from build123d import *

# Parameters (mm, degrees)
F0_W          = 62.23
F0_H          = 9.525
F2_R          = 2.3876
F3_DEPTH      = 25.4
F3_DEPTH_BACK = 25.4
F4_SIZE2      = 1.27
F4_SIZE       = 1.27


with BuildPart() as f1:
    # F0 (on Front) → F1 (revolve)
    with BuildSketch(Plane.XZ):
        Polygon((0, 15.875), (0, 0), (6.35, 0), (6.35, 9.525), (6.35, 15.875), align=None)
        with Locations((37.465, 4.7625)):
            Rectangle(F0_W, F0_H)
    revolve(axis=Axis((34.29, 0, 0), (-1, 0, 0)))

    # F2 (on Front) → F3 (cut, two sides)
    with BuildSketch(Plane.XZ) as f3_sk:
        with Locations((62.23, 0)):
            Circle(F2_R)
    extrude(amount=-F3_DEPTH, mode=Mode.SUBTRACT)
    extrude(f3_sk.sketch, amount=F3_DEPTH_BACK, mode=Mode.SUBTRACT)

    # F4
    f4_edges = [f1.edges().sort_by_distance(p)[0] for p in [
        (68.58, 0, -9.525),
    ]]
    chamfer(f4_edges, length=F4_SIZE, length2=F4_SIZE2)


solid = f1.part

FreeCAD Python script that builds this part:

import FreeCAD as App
import Part
import Sketcher

V = App.Vector
Q = App.Units.Quantity


def edges_at(feature, points):
    """Names of the edges that pass closest to the given points."""
    edges = feature.Shape.Edges
    near = lambda p: min(range(len(edges)), key=lambda i: edges[i].distToShape(Part.Vertex(*p))[0])
    return sorted({f"Edge{near(p) + 1}" for p in points})


def add_polygon(sketch, points):
    """Adds a closed chain of lines whose ends are joined by coincident constraints."""
    first, n = sketch.GeometryCount, len(points)
    for a, b in zip(points, points[1:] + points[:1]):
        sketch.addGeometry(Part.LineSegment(App.Vector(*a, 0), App.Vector(*b, 0)), False)
    for i in range(n):
        sketch.addConstraint(Sketcher.Constraint("Coincident", first + i, 2, first + (i + 1) % n, 1))

doc = App.newDocument("Part")
params = doc.addObject("Spreadsheet::Sheet", "Params")
for row, (alias, value) in enumerate([
    ("sketch1_width", "2.7 in"),
    ("sketch1_width2", "2.45 in"),
    ("sketch1_height", "0.625 in"),
    ("revolution_angle", "360 deg"),
    ("sketch2_diameter", "0.188 in"),
    ("chamfer_size", "0.05 in"),
    ("chamfer_size2", "0.05 in"),
], start=1):
    params.set(f"A{row}", alias)
    params.set(f"B{row}", "=" + value)
    params.setAlias(f"B{row}", alias)

body = doc.addObject("PartDesign::Body", "Body")

# Sketch on XZ plane
sketch1 = body.newObject("Sketcher::SketchObject", "Sketch")
sketch1.AttachmentSupport = (doc.getObject("XZ_Plane"), [""])
sketch1.MapMode = "FlatFace"
add_polygon(sketch1, [(0, 16), (0, 0), (69, 0), (69, 10), (6, 10), (6, 16)])  # lines 0-5
sketch1.addConstraint(Sketcher.Constraint("Vertical", 0))
sketch1.addConstraint(Sketcher.Constraint("Horizontal", 1))
sketch1.addConstraint(Sketcher.Constraint("Vertical", 2))
sketch1.addConstraint(Sketcher.Constraint("Horizontal", 3))
sketch1.addConstraint(Sketcher.Constraint("Vertical", 4))
sketch1.addConstraint(Sketcher.Constraint("Horizontal", 5))
sketch1.addConstraint(Sketcher.Constraint("Coincident", 0, 2, -1, 1))
sketch1.addConstraint(Sketcher.Constraint("Equal", 5, 4))
sketch1.addConstraint(Sketcher.Constraint("DistanceX", 1, 1, 1, 2, Q("2.7 in")))
sketch1.addConstraint(Sketcher.Constraint("DistanceX", 3, 2, 3, 1, Q("2.45 in")))
sketch1.addConstraint(Sketcher.Constraint("DistanceY", 0, 2, 0, 1, Q("0.625 in")))
sketch1.setExpression("Constraints[14]", "Params.sketch1_width")
sketch1.setExpression("Constraints[15]", "Params.sketch1_width2")
sketch1.setExpression("Constraints[16]", "Params.sketch1_height")
revolution = body.newObject("PartDesign::Revolution", "Revolution")
revolution.Profile = sketch1
revolution.ReferenceAxis = (sketch1, ["H_Axis"])
revolution.setExpression("Angle", "Params.revolution_angle")

# Sketch on XZ plane
sketch2 = body.newObject("Sketcher::SketchObject", "Sketch001")
sketch2.AttachmentSupport = (doc.getObject("XZ_Plane"), [""])
sketch2.MapMode = "FlatFace"
sketch2.addGeometry(Part.Circle(V(62.2, 0, 0), V(0, 0, 1), 2.4), False)
sketch2.addConstraint(Sketcher.Constraint("PointOnObject", 0, 3, -1))
sketch2.addConstraint(Sketcher.Constraint("Diameter", 0, Q("0.188 in")))
sketch2.addConstraint(Sketcher.Constraint("DistanceX", -1, 1, 0, 3, Q("2.45 in")))
sketch2.setExpression("Constraints[1]", "Params.sketch2_diameter")
pocket1 = body.newObject("PartDesign::Pocket", "Pocket")
pocket1.Profile = sketch2
pocket1.Type = "ThroughAll"
pocket1.Midplane = True
doc.recompute()

chamfer = body.newObject("PartDesign::Chamfer", "Chamfer")
chamfer.Base = (pocket1, edges_at(pocket1, [(68.58, 0, -9.525)]))
chamfer.ChamferType = "Two distances"
chamfer.setExpression("Size", "Params.chamfer_size")
chamfer.setExpression("Size2", "Params.chamfer_size2")

doc.recompute()
